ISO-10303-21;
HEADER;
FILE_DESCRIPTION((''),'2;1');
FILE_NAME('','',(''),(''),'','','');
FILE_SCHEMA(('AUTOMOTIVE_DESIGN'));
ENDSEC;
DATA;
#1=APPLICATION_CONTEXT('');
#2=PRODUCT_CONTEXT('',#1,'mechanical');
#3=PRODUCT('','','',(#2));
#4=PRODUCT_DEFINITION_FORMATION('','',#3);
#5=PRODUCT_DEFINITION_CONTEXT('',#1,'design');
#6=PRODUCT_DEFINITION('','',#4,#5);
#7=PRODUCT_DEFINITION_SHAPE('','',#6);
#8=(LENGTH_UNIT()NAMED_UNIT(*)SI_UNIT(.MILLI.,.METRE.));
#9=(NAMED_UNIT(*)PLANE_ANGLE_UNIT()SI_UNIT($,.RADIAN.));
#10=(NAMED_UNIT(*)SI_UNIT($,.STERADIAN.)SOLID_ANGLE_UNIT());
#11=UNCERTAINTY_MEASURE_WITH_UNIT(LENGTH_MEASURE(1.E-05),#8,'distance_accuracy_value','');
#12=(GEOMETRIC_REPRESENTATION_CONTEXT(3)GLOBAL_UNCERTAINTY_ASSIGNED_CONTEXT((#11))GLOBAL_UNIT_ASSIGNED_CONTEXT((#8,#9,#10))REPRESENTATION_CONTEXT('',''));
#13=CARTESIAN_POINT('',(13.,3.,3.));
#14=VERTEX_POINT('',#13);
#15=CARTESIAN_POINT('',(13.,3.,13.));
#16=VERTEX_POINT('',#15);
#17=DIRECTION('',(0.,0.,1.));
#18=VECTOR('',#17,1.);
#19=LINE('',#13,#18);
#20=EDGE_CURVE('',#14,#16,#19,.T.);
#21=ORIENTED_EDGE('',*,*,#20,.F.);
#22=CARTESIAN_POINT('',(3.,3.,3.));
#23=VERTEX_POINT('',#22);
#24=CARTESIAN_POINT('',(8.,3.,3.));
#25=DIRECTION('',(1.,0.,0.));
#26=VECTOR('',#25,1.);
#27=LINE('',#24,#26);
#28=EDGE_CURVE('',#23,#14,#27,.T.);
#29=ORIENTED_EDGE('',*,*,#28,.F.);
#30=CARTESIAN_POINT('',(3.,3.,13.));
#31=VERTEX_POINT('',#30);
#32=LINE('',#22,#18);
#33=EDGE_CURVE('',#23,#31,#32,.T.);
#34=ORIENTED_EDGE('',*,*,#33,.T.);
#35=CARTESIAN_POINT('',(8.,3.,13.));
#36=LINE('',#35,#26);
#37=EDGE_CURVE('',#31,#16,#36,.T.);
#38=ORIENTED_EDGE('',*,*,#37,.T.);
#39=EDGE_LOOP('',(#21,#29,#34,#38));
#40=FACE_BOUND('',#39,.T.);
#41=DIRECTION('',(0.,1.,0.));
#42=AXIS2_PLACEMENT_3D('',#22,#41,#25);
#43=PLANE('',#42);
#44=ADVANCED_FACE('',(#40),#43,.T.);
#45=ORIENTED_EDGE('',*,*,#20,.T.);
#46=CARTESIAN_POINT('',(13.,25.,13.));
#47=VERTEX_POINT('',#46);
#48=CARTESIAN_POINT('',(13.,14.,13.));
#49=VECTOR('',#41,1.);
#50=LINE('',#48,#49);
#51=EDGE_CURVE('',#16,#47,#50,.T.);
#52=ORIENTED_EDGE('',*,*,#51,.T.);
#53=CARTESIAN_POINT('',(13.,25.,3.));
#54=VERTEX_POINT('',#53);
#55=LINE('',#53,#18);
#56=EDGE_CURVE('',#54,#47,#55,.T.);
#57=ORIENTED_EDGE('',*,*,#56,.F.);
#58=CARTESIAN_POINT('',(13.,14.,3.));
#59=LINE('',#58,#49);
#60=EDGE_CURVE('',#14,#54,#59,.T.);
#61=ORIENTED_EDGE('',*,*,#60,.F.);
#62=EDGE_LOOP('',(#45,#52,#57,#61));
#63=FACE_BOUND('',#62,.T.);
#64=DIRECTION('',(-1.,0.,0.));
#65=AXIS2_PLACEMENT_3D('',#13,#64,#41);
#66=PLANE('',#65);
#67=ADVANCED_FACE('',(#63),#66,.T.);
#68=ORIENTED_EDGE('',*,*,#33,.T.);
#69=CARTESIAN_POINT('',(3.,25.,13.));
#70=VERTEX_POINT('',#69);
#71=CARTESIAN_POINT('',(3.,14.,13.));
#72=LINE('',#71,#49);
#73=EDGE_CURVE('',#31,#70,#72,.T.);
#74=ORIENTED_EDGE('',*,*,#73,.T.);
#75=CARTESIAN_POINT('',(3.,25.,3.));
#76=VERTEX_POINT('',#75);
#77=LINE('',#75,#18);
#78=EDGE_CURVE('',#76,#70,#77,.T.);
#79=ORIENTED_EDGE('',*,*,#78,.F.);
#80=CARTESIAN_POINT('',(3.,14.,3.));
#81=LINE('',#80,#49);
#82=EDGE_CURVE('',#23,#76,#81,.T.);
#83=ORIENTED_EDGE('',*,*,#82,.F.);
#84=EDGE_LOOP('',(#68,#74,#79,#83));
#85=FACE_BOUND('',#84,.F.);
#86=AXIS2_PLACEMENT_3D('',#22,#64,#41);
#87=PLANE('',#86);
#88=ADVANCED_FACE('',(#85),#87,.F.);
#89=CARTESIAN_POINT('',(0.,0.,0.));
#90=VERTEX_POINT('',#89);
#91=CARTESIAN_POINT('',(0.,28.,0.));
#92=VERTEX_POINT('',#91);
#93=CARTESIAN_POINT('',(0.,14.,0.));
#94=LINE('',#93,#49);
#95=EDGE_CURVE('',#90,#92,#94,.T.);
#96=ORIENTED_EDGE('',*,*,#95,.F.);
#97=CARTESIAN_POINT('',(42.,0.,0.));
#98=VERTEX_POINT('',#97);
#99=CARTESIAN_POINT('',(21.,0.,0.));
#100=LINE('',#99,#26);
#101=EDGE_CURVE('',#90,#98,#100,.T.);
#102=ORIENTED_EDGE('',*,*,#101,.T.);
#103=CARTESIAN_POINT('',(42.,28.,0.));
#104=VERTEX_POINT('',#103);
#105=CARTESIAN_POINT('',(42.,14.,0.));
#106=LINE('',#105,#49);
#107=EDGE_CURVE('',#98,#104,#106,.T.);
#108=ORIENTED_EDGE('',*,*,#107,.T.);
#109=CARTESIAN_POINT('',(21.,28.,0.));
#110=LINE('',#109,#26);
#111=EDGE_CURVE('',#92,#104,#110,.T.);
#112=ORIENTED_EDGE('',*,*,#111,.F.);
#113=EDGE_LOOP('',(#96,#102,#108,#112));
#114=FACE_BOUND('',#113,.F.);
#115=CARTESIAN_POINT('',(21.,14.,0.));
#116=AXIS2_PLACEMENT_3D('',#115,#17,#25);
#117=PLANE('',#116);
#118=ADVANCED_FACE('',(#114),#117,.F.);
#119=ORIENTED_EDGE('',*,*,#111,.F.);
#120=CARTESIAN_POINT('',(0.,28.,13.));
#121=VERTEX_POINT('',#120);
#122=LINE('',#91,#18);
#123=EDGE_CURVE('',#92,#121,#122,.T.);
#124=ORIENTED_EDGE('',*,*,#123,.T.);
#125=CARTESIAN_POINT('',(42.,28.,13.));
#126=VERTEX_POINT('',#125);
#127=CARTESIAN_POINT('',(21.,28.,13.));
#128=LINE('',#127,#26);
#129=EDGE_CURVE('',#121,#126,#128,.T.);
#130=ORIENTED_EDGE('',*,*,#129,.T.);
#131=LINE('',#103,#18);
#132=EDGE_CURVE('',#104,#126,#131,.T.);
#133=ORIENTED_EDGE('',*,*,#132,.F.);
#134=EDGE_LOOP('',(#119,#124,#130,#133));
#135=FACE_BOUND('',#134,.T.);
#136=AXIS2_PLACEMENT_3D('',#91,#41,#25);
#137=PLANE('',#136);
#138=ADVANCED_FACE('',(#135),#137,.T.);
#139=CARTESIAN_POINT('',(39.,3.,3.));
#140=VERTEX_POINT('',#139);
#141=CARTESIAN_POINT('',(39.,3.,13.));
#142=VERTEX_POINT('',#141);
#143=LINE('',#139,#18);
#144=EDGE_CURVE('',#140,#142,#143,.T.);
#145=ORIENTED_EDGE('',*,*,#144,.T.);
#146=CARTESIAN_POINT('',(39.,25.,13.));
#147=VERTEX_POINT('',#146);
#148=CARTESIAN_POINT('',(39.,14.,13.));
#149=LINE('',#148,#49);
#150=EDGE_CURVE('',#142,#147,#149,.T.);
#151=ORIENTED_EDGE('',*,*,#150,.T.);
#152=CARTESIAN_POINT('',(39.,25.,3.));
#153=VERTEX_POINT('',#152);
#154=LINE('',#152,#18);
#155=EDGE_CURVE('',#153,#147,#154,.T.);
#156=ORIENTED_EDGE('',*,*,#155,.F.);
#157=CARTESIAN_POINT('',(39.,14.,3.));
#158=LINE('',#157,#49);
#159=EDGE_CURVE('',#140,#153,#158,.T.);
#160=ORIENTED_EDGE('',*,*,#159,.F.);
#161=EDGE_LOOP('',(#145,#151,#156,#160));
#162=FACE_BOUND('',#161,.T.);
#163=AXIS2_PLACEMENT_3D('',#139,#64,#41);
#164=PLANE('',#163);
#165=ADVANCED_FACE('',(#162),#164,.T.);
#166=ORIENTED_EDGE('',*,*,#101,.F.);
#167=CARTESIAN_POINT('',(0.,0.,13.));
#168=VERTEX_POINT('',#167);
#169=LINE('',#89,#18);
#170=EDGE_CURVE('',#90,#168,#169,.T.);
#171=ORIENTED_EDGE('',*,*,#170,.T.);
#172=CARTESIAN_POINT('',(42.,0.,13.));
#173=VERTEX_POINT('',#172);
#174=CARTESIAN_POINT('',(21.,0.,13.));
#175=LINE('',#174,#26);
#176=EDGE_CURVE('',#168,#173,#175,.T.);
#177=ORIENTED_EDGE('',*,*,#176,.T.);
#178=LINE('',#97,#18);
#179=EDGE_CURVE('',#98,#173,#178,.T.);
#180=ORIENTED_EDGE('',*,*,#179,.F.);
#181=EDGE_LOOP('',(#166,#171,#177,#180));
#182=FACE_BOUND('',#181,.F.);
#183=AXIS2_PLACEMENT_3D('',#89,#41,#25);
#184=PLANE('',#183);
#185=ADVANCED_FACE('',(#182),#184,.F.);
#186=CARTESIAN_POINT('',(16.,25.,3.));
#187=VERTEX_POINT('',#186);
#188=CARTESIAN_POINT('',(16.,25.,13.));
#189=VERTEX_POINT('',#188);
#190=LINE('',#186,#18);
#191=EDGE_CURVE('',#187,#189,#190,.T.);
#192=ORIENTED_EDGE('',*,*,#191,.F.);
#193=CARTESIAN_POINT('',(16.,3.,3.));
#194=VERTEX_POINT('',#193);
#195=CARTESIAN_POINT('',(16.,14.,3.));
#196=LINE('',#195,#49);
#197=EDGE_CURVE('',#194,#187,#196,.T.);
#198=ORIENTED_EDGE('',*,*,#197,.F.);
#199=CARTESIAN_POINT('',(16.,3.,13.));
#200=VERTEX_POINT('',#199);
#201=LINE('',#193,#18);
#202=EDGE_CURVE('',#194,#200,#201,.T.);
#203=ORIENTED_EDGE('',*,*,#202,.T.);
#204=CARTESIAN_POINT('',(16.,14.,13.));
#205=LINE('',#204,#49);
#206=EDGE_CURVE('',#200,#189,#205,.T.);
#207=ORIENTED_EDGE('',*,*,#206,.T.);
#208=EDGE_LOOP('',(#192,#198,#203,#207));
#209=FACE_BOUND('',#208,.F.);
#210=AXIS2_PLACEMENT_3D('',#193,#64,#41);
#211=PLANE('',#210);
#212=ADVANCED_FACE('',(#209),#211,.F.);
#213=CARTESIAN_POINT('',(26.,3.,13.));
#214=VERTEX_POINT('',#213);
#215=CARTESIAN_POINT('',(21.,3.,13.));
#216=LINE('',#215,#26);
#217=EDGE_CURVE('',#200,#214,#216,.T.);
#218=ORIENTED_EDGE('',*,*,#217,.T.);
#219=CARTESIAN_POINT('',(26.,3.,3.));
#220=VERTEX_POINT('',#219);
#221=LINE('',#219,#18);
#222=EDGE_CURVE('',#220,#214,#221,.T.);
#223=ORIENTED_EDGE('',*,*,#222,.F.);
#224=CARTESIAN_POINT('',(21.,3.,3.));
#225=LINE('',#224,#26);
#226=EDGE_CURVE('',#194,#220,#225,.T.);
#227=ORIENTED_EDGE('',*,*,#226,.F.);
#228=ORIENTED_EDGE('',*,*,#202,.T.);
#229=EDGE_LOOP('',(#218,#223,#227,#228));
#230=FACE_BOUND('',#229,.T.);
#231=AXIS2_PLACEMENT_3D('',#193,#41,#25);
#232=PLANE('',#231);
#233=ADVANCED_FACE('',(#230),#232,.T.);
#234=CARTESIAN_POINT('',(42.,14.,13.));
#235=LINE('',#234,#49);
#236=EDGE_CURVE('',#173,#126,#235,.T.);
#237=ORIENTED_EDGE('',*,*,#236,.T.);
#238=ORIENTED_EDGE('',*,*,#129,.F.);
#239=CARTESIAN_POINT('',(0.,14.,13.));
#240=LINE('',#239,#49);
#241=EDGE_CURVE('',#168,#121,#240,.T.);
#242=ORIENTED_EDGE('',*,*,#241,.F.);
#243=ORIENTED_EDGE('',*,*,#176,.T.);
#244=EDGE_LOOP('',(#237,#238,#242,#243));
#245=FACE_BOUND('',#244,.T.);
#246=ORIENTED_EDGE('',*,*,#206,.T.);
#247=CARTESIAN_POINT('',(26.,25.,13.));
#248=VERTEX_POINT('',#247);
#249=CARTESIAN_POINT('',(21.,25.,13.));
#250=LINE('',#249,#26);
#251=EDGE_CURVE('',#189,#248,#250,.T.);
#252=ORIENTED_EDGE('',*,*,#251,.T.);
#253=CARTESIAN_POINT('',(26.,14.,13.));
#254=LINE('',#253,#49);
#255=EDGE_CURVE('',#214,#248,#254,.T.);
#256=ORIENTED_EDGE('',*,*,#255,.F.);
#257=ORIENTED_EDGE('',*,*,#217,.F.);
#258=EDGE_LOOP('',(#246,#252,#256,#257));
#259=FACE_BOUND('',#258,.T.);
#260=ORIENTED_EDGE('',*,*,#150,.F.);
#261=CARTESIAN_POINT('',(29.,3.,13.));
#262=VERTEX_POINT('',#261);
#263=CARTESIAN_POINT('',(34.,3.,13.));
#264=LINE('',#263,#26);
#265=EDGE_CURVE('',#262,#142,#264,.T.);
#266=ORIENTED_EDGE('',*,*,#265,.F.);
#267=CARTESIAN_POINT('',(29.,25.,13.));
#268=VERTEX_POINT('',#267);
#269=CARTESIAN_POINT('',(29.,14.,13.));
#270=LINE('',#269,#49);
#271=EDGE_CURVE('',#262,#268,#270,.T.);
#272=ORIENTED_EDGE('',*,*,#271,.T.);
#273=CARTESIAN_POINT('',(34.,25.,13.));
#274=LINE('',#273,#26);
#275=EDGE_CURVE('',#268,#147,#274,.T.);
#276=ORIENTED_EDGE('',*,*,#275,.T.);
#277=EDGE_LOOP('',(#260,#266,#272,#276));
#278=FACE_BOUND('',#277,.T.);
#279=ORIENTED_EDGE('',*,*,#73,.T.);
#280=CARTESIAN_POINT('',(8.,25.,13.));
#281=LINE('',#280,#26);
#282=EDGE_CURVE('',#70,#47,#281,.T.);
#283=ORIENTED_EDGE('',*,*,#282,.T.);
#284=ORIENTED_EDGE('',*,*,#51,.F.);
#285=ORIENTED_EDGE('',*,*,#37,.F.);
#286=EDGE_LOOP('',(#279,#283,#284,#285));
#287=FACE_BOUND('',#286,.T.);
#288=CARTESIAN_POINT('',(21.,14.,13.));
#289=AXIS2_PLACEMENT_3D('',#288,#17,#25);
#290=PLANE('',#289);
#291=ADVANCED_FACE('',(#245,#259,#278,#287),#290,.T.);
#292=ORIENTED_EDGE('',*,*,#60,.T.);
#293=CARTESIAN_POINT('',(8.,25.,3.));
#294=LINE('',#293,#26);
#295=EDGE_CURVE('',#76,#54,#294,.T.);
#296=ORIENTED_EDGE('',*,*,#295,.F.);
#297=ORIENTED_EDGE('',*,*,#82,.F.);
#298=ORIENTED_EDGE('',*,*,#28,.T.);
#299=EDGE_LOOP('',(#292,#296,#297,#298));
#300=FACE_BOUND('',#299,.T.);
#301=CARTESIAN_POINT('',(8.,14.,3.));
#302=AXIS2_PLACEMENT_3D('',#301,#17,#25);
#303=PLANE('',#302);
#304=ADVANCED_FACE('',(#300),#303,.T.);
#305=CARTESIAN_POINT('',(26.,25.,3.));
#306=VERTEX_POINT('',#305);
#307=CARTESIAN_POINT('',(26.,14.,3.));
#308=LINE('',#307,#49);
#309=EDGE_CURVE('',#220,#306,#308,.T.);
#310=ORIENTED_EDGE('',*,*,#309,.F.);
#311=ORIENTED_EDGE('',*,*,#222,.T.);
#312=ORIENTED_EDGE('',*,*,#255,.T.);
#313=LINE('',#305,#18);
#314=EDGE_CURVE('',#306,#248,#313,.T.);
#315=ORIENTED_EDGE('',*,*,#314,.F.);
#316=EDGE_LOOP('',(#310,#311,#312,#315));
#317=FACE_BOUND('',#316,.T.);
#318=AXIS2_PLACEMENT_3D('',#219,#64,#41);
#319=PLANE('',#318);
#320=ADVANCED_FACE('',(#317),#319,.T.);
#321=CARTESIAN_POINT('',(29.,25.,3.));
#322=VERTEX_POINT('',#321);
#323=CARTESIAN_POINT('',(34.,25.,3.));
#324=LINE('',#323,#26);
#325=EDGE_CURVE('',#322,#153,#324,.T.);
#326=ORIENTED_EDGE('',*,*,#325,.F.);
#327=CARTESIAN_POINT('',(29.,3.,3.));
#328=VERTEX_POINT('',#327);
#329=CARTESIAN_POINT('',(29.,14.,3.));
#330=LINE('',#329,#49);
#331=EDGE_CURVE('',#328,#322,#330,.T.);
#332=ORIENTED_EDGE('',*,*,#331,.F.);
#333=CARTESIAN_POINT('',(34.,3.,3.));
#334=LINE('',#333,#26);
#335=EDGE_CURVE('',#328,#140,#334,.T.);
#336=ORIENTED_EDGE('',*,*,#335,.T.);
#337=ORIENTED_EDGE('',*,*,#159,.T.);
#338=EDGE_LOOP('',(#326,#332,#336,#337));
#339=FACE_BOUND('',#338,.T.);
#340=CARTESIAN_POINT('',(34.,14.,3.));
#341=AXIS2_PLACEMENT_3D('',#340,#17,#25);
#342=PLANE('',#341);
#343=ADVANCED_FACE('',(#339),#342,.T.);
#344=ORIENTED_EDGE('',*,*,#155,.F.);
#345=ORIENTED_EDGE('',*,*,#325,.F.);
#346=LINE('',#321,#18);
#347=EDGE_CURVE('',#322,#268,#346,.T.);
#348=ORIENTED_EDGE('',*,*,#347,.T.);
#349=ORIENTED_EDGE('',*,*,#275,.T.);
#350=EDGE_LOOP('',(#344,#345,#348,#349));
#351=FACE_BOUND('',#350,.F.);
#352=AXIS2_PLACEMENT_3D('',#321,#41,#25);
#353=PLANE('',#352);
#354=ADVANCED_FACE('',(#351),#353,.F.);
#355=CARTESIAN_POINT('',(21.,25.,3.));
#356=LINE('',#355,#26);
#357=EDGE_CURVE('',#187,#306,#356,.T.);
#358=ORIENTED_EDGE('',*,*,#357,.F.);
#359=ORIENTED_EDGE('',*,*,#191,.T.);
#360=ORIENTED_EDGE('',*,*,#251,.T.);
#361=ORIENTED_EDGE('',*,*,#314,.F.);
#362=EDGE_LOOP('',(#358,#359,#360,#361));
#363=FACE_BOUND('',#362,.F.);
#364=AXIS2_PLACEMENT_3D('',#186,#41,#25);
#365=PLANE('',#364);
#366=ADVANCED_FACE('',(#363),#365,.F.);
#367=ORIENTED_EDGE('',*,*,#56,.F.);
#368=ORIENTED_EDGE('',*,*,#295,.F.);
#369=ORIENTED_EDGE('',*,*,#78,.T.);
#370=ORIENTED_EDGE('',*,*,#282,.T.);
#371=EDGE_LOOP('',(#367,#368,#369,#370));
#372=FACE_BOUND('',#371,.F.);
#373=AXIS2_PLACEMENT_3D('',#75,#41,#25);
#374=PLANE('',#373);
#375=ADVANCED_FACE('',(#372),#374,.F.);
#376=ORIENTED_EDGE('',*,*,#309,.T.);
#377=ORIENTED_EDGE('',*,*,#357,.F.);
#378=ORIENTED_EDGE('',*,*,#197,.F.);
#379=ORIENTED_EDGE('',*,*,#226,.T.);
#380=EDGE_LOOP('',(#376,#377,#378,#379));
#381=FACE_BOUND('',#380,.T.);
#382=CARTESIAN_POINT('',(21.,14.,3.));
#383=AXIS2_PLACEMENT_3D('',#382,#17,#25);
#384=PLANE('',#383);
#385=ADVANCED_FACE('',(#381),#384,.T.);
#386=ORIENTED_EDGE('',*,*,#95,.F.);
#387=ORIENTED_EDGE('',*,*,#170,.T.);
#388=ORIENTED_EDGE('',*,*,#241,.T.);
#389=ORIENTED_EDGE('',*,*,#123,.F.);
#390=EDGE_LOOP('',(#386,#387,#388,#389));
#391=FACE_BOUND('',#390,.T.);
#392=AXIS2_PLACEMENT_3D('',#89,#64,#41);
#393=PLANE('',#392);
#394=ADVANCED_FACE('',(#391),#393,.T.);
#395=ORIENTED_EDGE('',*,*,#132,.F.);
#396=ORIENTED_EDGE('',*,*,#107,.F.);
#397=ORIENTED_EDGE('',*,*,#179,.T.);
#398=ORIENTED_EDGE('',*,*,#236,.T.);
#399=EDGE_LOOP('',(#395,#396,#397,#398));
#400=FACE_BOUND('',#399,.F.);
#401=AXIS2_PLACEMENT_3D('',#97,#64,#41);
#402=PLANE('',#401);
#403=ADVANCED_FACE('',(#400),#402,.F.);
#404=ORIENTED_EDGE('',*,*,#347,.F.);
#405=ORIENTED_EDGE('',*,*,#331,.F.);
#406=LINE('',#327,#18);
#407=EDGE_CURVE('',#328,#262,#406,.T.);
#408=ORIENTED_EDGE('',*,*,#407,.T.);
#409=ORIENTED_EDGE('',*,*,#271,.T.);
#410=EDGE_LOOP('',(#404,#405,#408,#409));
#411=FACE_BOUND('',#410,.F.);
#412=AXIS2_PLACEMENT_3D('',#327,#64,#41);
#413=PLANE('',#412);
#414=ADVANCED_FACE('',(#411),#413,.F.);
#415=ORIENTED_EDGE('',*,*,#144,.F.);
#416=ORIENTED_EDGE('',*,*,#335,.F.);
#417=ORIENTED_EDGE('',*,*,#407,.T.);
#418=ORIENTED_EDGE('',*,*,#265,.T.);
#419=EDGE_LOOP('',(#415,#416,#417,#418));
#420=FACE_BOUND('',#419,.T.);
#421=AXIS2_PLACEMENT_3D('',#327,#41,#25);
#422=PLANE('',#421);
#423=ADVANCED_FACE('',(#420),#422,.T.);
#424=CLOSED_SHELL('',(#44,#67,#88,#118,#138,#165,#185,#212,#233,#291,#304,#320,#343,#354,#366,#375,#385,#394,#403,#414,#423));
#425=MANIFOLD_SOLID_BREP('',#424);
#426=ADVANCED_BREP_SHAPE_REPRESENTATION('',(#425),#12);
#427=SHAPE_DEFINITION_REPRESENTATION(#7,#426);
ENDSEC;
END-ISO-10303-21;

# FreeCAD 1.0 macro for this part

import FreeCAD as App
import Part
import Sketcher
Q = App.Units.Quantity


def add_polygon(sketch, points):
    """Adds a closed chain of lines whose ends are joined by coincident constraints."""
    first, n = sketch.GeometryCount, len(points)
    for a, b in zip(points, points[1:] + points[:1]):
        sketch.addGeometry(Part.LineSegment(App.Vector(*a, 0), App.Vector(*b, 0)), False)
    for i in range(n):
        sketch.addConstraint(Sketcher.Constraint("Coincident", first + i, 2, first + (i + 1) % n, 1))

doc = App.newDocument("Part")
body = doc.addObject("PartDesign::Body", "Body")

sketch1 = doc.addObject("Sketcher::SketchObject", "Sketch")
body.addObject(sketch1)
sketch1.AttachmentSupport = (doc.XY_Plane, [""])
sketch1.MapMode = "FlatFace"
sketch1.AttachmentOffset = App.Placement(App.Vector(0, 0, 3), App.Rotation())
add_polygon(sketch1, [(29, 25), (29, 3), (39, 3), (39, 25)])
sketch1.addConstraint(Sketcher.Constraint("Vertical", 0))
sketch1.addConstraint(Sketcher.Constraint("Horizontal", 1))
sketch1.addConstraint(Sketcher.Constraint("Vertical", 2))
sketch1.addConstraint(Sketcher.Constraint("Horizontal", 3))
sketch1.addConstraint(Sketcher.Constraint("DistanceX", 1, 1, 1, 2, Q("10 mm")))
sketch1.addConstraint(Sketcher.Constraint("DistanceY", 0, 2, 0, 1, Q("22 mm")))
sketch1.addConstraint(Sketcher.Constraint("DistanceX", -1, 1, 0, 2, Q("29 mm")))
sketch1.addConstraint(Sketcher.Constraint("DistanceY", -1, 1, 0, 2, Q("3 mm")))
pad1 = doc.addObject("PartDesign::Pad", "Pad")
body.addObject(pad1)
pad1.Profile = sketch1
pad1.Length = 10
body2 = doc.addObject("PartDesign::Body", "Body001")

sketch2 = doc.addObject("Sketcher::SketchObject", "Sketch001")
body2.addObject(sketch2)
sketch2.AttachmentSupport = (doc.getObject("XY_Plane001"), [""])
sketch2.MapMode = "FlatFace"
sketch2.AttachmentOffset = App.Placement(App.Vector(0, 0, 3), App.Rotation())
add_polygon(sketch2, [(16, 25), (16, 3), (26, 3), (26, 25)])
sketch2.addConstraint(Sketcher.Constraint("Vertical", 0))
sketch2.addConstraint(Sketcher.Constraint("Horizontal", 1))
sketch2.addConstraint(Sketcher.Constraint("Vertical", 2))
sketch2.addConstraint(Sketcher.Constraint("Horizontal", 3))
sketch2.addConstraint(Sketcher.Constraint("DistanceX", 1, 1, 1, 2, Q("10 mm")))
sketch2.addConstraint(Sketcher.Constraint("DistanceY", 0, 2, 0, 1, Q("22 mm")))
sketch2.addConstraint(Sketcher.Constraint("DistanceX", -1, 1, 0, 2, Q("16 mm")))
sketch2.addConstraint(Sketcher.Constraint("DistanceY", -1, 1, 0, 2, Q("3 mm")))
pad2 = doc.addObject("PartDesign::Pad", "Pad001")
body2.addObject(pad2)
pad2.Profile = sketch2
pad2.Length = 10
body3 = doc.addObject("PartDesign::Body", "Body002")

sketch3 = doc.addObject("Sketcher::SketchObject", "Sketch002")
body3.addObject(sketch3)
sketch3.AttachmentSupport = (doc.getObject("XY_Plane002"), [""])
sketch3.MapMode = "FlatFace"
sketch3.AttachmentOffset = App.Placement(App.Vector(0, 0, 3), App.Rotation())
add_polygon(sketch3, [(3, 25), (3, 3), (13, 3), (13, 25)])
sketch3.addConstraint(Sketcher.Constraint("Vertical", 0))
sketch3.addConstraint(Sketcher.Constraint("Horizontal", 1))
sketch3.addConstraint(Sketcher.Constraint("Vertical", 2))
sketch3.addConstraint(Sketcher.Constraint("Horizontal", 3))
sketch3.addConstraint(Sketcher.Constraint("DistanceX", 1, 1, 1, 2, Q("10 mm")))
sketch3.addConstraint(Sketcher.Constraint("DistanceY", 0, 2, 0, 1, Q("22 mm")))
sketch3.addConstraint(Sketcher.Constraint("DistanceX", -1, 1, 0, 2, Q("3 mm")))
sketch3.addConstraint(Sketcher.Constraint("DistanceY", -1, 1, 0, 2, Q("3 mm")))
pad3 = doc.addObject("PartDesign::Pad", "Pad002")
body3.addObject(pad3)
pad3.Profile = sketch3
pad3.Length = 10
body4 = doc.addObject("PartDesign::Body", "Body003")

sketch4 = doc.addObject("Sketcher::SketchObject", "Sketch003")
body4.addObject(sketch4)
sketch4.AttachmentSupport = (doc.getObject("XY_Plane003"), [""])
sketch4.MapMode = "FlatFace"
add_polygon(sketch4, [(0, 28), (0, 0), (42, 0), (42, 28)])
sketch4.addConstraint(Sketcher.Constraint("Vertical", 0))
sketch4.addConstraint(Sketcher.Constraint("Horizontal", 1))
sketch4.addConstraint(Sketcher.Constraint("Vertical", 2))
sketch4.addConstraint(Sketcher.Constraint("Horizontal", 3))
sketch4.addConstraint(Sketcher.Constraint("Coincident", 0, 2, -1, 1))
sketch4.addConstraint(Sketcher.Constraint("DistanceX", 1, 1, 1, 2, Q("42 mm")))
sketch4.addConstraint(Sketcher.Constraint("DistanceY", 0, 2, 0, 1, Q("28 mm")))
pad4 = doc.addObject("PartDesign::Pad", "Pad003")
body4.addObject(pad4)
pad4.Profile = sketch4
pad4.Length = 13
doc.recompute()

boolean = doc.addObject("PartDesign::Boolean", "Boolean")
body4.addObject(boolean)
boolean.Type = "Cut"
boolean.addObjects([body3])
doc.recompute()

boolean2 = doc.addObject("PartDesign::Boolean", "Boolean001")
body4.addObject(boolean2)
boolean2.Type = "Cut"
boolean2.addObjects([body2])
doc.recompute()

boolean3 = doc.addObject("PartDesign::Boolean", "Boolean002")
body4.addObject(boolean3)
boolean3.Type = "Cut"
boolean3.addObjects([body])

doc.recompute()
